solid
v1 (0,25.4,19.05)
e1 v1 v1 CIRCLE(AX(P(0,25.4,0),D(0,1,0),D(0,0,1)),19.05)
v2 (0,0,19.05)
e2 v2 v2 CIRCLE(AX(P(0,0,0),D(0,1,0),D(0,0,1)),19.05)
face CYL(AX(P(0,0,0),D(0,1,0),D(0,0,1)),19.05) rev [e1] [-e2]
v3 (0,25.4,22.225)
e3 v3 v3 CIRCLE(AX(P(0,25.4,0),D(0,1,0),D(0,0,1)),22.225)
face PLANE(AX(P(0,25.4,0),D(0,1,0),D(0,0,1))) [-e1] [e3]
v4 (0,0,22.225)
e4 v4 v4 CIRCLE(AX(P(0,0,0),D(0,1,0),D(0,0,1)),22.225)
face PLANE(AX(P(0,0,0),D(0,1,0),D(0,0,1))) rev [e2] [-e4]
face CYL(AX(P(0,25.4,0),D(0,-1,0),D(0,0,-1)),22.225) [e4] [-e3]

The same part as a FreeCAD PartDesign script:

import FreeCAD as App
import Part
import Sketcher

V = App.Vector
Q = App.Units.Quantity

doc = App.newDocument("Part")
body = doc.addObject("PartDesign::Body", "Body")

# Sketch on XZ plane
sketch1 = doc.addObject("Sketcher::SketchObject", "Sketch")
body.addObject(sketch1)
sketch1.AttachmentSupport = (doc.XZ_Plane, [""])
sketch1.MapMode = "FlatFace"
sketch1.addGeometry(Part.Circle(V(0, 0, 0), V(0, 0, 1), 22), False)
sketch1.addConstraint(Sketcher.Constraint("Coincident", 0, 3, -1, 1))
sketch1.addConstraint(Sketcher.Constraint("Diameter", 0, Q("1.75 in")))
pad1 = doc.addObject("PartDesign::Pad", "Pad")
body.addObject(pad1)
pad1.Profile = sketch1
pad1.Length = Q("1 in")
pad1.Reversed = True

# Sketch on XZ plane
sketch2 = doc.addObject("Sketcher::SketchObject", "Sketch001")
body.addObject(sketch2)
sketch2.AttachmentSupport = (doc.XZ_Plane, [""])
sketch2.MapMode = "FlatFace"
sketch2.AttachmentOffset = App.Placement(V(0, 0, -1 * 25.4), App.Rotation())
sketch2.addGeometry(Part.Circle(V(0, 0, 0), V(0, 0, 1), 19), False)
sketch2.addConstraint(Sketcher.Constraint("Coincident", 0, 3, -1, 1))
sketch2.addConstraint(Sketcher.Constraint("Diameter", 0, Q("1.5 in")))
pocket1 = doc.addObject("PartDesign::Pocket", "Pocket")
body.addObject(pocket1)
pocket1.Profile = sketch2
pocket1.Type = "ThroughAll"
pocket1.Reversed = True

doc.recompute()
